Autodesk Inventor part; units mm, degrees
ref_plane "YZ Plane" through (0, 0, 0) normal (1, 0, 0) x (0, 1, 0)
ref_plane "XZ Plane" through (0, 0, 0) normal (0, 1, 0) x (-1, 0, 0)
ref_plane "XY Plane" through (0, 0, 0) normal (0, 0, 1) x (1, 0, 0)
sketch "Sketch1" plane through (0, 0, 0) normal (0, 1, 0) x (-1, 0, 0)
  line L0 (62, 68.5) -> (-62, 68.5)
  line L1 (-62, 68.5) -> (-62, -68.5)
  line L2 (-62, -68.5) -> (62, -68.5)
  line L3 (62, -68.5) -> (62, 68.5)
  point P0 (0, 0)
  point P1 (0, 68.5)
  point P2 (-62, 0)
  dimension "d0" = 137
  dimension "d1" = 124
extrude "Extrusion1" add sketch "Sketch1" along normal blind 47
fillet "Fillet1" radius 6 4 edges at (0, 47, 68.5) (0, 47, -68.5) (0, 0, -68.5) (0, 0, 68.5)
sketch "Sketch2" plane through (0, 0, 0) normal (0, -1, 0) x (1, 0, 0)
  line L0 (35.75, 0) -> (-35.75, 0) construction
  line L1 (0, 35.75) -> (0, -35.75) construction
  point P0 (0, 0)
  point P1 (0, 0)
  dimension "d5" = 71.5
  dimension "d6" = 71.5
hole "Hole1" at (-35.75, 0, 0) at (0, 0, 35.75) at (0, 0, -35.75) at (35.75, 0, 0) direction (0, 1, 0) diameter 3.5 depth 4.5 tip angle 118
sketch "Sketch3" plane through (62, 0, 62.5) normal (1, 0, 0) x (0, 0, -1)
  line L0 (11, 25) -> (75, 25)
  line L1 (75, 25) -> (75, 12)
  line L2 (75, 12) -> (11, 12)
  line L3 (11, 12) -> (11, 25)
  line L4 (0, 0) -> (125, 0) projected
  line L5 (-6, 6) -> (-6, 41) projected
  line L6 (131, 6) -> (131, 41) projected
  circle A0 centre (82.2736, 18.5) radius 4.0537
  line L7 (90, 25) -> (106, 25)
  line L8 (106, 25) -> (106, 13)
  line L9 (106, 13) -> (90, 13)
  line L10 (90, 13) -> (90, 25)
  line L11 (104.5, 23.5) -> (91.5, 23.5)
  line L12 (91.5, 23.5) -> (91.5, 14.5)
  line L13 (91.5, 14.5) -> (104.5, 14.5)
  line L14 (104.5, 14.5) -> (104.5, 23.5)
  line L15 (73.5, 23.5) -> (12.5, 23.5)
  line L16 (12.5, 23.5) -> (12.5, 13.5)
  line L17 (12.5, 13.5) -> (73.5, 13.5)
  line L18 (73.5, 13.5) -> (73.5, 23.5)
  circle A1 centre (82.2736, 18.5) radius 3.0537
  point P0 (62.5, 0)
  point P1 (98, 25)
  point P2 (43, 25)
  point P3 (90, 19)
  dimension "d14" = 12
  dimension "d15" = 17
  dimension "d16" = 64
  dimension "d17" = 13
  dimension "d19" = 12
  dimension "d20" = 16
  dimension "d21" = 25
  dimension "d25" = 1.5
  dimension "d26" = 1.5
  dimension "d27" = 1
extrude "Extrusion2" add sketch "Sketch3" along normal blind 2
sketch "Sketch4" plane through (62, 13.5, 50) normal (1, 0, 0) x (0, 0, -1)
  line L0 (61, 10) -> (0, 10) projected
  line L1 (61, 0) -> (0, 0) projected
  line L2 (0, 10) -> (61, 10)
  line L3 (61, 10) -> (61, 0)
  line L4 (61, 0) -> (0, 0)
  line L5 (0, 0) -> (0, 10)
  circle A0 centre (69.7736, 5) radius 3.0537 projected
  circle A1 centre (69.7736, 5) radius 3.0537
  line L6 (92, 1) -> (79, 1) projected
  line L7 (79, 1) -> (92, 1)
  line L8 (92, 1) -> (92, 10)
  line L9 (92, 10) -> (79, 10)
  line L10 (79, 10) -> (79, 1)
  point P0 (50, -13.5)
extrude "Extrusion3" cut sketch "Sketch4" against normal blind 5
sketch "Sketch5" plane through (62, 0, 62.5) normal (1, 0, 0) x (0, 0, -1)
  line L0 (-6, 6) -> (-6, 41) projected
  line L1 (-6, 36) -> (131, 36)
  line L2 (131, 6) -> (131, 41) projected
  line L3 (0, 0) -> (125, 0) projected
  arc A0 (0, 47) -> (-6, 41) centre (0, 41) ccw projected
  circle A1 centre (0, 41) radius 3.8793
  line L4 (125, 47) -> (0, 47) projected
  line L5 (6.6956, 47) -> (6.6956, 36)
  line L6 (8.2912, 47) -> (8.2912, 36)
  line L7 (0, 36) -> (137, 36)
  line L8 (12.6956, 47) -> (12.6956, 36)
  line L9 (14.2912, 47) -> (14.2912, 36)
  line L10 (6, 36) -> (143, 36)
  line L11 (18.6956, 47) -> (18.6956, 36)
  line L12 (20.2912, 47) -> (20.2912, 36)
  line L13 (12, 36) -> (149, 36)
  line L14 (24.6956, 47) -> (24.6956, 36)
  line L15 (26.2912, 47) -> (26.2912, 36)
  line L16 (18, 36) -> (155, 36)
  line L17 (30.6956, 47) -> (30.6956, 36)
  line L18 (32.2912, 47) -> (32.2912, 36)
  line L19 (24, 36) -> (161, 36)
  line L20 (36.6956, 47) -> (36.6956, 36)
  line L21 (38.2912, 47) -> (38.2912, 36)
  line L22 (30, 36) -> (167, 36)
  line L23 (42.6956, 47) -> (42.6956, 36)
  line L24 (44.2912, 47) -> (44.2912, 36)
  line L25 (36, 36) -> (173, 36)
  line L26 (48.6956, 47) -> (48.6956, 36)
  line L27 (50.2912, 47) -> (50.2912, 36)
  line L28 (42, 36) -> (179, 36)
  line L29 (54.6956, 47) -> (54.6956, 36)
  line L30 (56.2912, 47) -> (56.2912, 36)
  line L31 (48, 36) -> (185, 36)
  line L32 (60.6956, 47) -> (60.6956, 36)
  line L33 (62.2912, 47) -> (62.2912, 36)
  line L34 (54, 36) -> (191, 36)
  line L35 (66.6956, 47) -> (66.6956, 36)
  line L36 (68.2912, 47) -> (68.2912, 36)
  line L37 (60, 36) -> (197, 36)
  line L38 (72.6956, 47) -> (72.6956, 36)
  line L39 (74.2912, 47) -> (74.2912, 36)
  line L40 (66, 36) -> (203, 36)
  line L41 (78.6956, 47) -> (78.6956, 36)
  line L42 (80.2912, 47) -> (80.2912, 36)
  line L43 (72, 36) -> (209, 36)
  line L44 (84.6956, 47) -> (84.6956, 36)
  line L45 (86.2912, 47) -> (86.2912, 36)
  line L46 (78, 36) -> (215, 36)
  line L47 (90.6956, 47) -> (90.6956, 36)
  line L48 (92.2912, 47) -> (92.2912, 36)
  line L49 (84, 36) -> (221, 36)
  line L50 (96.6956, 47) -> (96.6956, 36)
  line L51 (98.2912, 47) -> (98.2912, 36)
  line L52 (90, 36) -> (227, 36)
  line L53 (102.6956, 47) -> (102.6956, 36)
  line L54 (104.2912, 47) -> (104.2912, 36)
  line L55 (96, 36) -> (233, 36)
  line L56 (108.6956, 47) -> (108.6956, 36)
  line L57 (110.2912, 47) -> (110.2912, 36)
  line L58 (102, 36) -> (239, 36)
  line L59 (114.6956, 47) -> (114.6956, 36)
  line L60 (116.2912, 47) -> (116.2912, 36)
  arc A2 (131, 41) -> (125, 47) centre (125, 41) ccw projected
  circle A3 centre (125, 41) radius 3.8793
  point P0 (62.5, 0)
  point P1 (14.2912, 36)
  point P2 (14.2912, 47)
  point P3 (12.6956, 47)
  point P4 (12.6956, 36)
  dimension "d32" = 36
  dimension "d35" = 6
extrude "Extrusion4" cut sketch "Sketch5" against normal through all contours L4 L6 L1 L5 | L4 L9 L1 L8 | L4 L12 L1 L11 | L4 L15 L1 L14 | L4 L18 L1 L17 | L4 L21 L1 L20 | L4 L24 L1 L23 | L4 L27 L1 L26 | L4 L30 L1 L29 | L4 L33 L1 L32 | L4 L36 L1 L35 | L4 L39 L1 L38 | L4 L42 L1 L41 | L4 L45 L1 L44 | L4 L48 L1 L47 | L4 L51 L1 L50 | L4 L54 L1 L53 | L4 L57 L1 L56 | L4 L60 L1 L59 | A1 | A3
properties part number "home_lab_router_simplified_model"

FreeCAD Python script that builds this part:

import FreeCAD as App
import Part
import Sketcher
from FreeCAD import Vector
Q = App.Units.Quantity


def edges_at(feature, points):
    """Names of the edges that pass closest to the given points."""
    edges = feature.Shape.Edges
    near = lambda p: min(range(len(edges)), key=lambda i: edges[i].distToShape(Part.Vertex(*p))[0])
    return sorted({f"Edge{near(p) + 1}" for p in points})

doc = App.newDocument("Part")
body = doc.addObject("PartDesign::Body", "Body")

# Sketch on XZ plane
sketch1 = body.newObject("Sketcher::SketchObject", "Sketch")
sketch1.AttachmentSupport = (doc.getObject("XZ_Plane"), [""])
sketch1.MapMode = "FlatFace"
sketch1.addGeometry([
    Part.LineSegment(Vector(-62, -68, 0), Vector(-62, 68, 0)),
    Part.LineSegment(Vector(-62, 68, 0), Vector(62, 68, 0)),
    Part.LineSegment(Vector(62, 68, 0), Vector(62, -68, 0)),
    Part.LineSegment(Vector(62, -68, 0), Vector(-62, -68, 0)),
], False)
sketch1.addConstraint([
    Sketcher.Constraint("Coincident", 0, 2, 1, 1),
    Sketcher.Constraint("Coincident", 1, 2, 2, 1),
    Sketcher.Constraint("Coincident", 2, 2, 3, 1),
    Sketcher.Constraint("Coincident", 3, 2, 0, 1),
    Sketcher.Constraint("Vertical", 0),
    Sketcher.Constraint("Horizontal", 1),
    Sketcher.Constraint("Vertical", 2),
    Sketcher.Constraint("Horizontal", 3),
    Sketcher.Constraint("Symmetric", 0, 2, 2, 2, -1, 1),
    Sketcher.Constraint("DistanceX", 1, 1, 1, 2, Q("124 mm")),
    Sketcher.Constraint("DistanceY", 0, 1, 0, 2, Q("137 mm")),
])
pad1 = body.newObject("PartDesign::Pad", "Pad")
pad1.Profile = sketch1
pad1.Length = 47
pad1.Reversed = True
doc.recompute()

fillet = body.newObject("PartDesign::Fillet", "Fillet")
fillet.Base = (pad1, edges_at(pad1, [
    (0, 47, 68.5),
    (0, 47, -68.5),
    (0, 0, -68.5),
    (0, 0, 68.5),
]))
fillet.Radius = 6

# Sketch on XZ plane
sketch2 = body.newObject("Sketcher::SketchObject", "Sketch001")
sketch2.AttachmentSupport = (doc.getObject("XZ_Plane"), [""])
sketch2.MapMode = "FlatFace"
sketch2.addGeometry([
    Part.Circle(Vector(-35.8, 0, 0), Vector(0, 0, 1), 1.8),
    Part.Circle(Vector(0, 35.8, 0), Vector(0, 0, 1), 1.8),
    Part.Circle(Vector(0, -35.8, 0), Vector(0, 0, 1), 1.8),
    Part.Circle(Vector(35.8, 0, 0), Vector(0, 0, 1), 1.8),
], False)
sketch2.addConstraint([
    Sketcher.Constraint("Equal", 0, 1),
    Sketcher.Constraint("Equal", 1, 2),
    Sketcher.Constraint("Equal", 2, 3),
    Sketcher.Constraint("Symmetric", 1, 3, 2, 3, -1, 1),
    Sketcher.Constraint("Symmetric", 0, 3, 3, 3, -1, 1),
    Sketcher.Constraint("PointOnObject", 0, 3, -1),
    Sketcher.Constraint("PointOnObject", 1, 3, -2),
    Sketcher.Constraint("Diameter", 0, Q("3.5 mm")),
    Sketcher.Constraint("DistanceY", 2, 3, 1, 3, Q("71.5 mm")),
    Sketcher.Constraint("DistanceX", 0, 3, 3, 3, Q("71.5 mm")),
])
doc.recompute()
hole = body.newObject("PartDesign::Hole", "Hole")
hole.Profile = sketch2
hole.ThreadType = "None"
hole.Diameter = 3.5
hole.DepthType = "Dimension"
hole.Depth = 4.5
hole.DrillPoint = "Angled"
hole.DrillPointAngle = 118

# Sketch on YZ plane
sketch3 = body.newObject("Sketcher::SketchObject", "Sketch002")
sketch3.AttachmentSupport = (doc.getObject("YZ_Plane"), [""])
sketch3.MapMode = "FlatFace"
sketch3.AttachmentOffset = App.Placement(Vector(0, 0, 62), App.Rotation())
sketch3.addGeometry([
    Part.LineSegment(Vector(25, -12.5, 0), Vector(25, 51.5, 0)),  # 0
    Part.LineSegment(Vector(25, 51.5, 0), Vector(12, 51.5, 0)),  # 1
    Part.LineSegment(Vector(12, 51.5, 0), Vector(12, -12.5, 0)),  # 2
    Part.LineSegment(Vector(12, -12.5, 0), Vector(25, -12.5, 0)),  # 3
    Part.LineSegment(Vector(23.5, 50, 0), Vector(23.5, -11, 0)),  # 4
    Part.LineSegment(Vector(23.5, -11, 0), Vector(13.5, -11, 0)),  # 5
    Part.LineSegment(Vector(13.5, -11, 0), Vector(13.5, 50, 0)),  # 6
    Part.LineSegment(Vector(13.5, 50, 0), Vector(23.5, 50, 0)),  # 7
    Part.Circle(Vector(18.5, -19.8, 0), Vector(0, 0, 1), 4.1),  # 8
    Part.Circle(Vector(18.5, -19.8, 0), Vector(0, 0, 1), 3.1),  # 9
    Part.LineSegment(Vector(25, -43.5, 0), Vector(25, -27.5, 0)),  # 10
    Part.LineSegment(Vector(25, -27.5, 0), Vector(13, -27.5, 0)),  # 11
    Part.LineSegment(Vector(13, -27.5, 0), Vector(13, -43.5, 0)),  # 12
    Part.LineSegment(Vector(13, -43.5, 0), Vector(25, -43.5, 0)),  # 13
    Part.LineSegment(Vector(23.5, -29, 0), Vector(23.5, -42, 0)),  # 14
    Part.LineSegment(Vector(23.5, -42, 0), Vector(14.5, -42, 0)),  # 15
    Part.LineSegment(Vector(14.5, -42, 0), Vector(14.5, -29, 0)),  # 16
    Part.LineSegment(Vector(14.5, -29, 0), Vector(23.5, -29, 0)),  # 17
], False)
sketch3.addConstraint([
    Sketcher.Constraint("Coincident", 0, 2, 1, 1),
    Sketcher.Constraint("Coincident", 1, 2, 2, 1),
    Sketcher.Constraint("Coincident", 2, 2, 3, 1),
    Sketcher.Constraint("Coincident", 3, 2, 0, 1),
    Sketcher.Constraint("Coincident", 4, 2, 5, 1),
    Sketcher.Constraint("Coincident", 5, 2, 6, 1),
    Sketcher.Constraint("Coincident", 6, 2, 7, 1),
    Sketcher.Constraint("Coincident", 7, 2, 4, 1),
    Sketcher.Constraint("Coincident", 10, 2, 11, 1),
    Sketcher.Constraint("Coincident", 11, 2, 12, 1),
    Sketcher.Constraint("Coincident", 12, 2, 13, 1),
    Sketcher.Constraint("Coincident", 13, 2, 10, 1),
    Sketcher.Constraint("Coincident", 14, 2, 15, 1),
    Sketcher.Constraint("Coincident", 15, 2, 16, 1),
    Sketcher.Constraint("Coincident", 16, 2, 17, 1),
    Sketcher.Constraint("Coincident", 17, 2, 14, 1),
    Sketcher.Constraint("Vertical", 0),
    Sketcher.Constraint("Horizontal", 1),
    Sketcher.Constraint("Vertical", 2),
    Sketcher.Constraint("Horizontal", 3),
    Sketcher.Constraint("Vertical", 4),
    Sketcher.Constraint("Horizontal", 5),
    Sketcher.Constraint("Vertical", 6),
    Sketcher.Constraint("Horizontal", 7),
    Sketcher.Constraint("Vertical", 10),
    Sketcher.Constraint("Horizontal", 11),
    Sketcher.Constraint("Vertical", 12),
    Sketcher.Constraint("Horizontal", 13),
    Sketcher.Constraint("Vertical", 14),
    Sketcher.Constraint("Horizontal", 15),
    Sketcher.Constraint("Vertical", 16),
    Sketcher.Constraint("Horizontal", 17),
    Sketcher.Constraint("Coincident", 9, 3, 8, 3),
    Sketcher.Constraint("Vertical", 3, 2, 10, 2),
    Sketcher.Constraint("Vertical", 7, 2, 14, 2),
    Sketcher.Constraint("Equal", 3, 14),
    Sketcher.Constraint("DistanceX", 1, 2, 1, 1, Q("13 mm")),
    Sketcher.Constraint("DistanceX", 11, 2, 11, 1, Q("12 mm")),
    Sketcher.Constraint("DistanceY", 0, 1, 0, 2, Q("64 mm")),
    Sketcher.Constraint("DistanceY", 10, 1, 10, 2, Q("16 mm")),
    Sketcher.Constraint("DistanceX", -1, 1, 0, 2, Q("25 mm")),
    Sketcher.Constraint("DistanceX", 4, 2, 3, 2, Q("1.5 mm")),
    Sketcher.Constraint("DistanceY", 3, 2, 4, 2, Q("1.5 mm")),
    Sketcher.Constraint("DistanceX", 2, 2, 5, 2, Q("1.5 mm")),
    Sketcher.Constraint("DistanceY", 6, 2, 1, 2, Q("1.5 mm")),
    Sketcher.Constraint("DistanceY", 13, 2, 14, 2, Q("1.5 mm")),
    Sketcher.Constraint("DistanceX", 12, 2, 15, 2, Q("1.5 mm")),
    Sketcher.Constraint("DistanceY", 4, 2, -1, 1, Q("11 mm")),
    Sketcher.Constraint("DistanceY", 14, 2, -1, 1, Q("42 mm")),
    Sketcher.Constraint("DistanceX", 8, 3, 4, 2, Q("5 mm")),
    Sketcher.Constraint("Diameter", 8, Q("8.1074 mm")),
    Sketcher.Constraint("Diameter", 9, Q("6.1074 mm")),
    Sketcher.Constraint("DistanceY", 8, 3, -1, 1, Q("19.7736 mm")),
])
pad2 = body.newObject("PartDesign::Pad", "Pad001")
pad2.Profile = sketch3
pad2.Length = 2

# Sketch on YZ plane
sketch4 = body.newObject("Sketcher::SketchObject", "Sketch003")
sketch4.AttachmentSupport = (doc.getObject("YZ_Plane"), [""])
sketch4.MapMode = "FlatFace"
sketch4.AttachmentOffset = App.Placement(Vector(0, 0, 62), App.Rotation())
sketch4.addGeometry([
    Part.LineSegment(Vector(13.5, -11, 0), Vector(23.5, -11, 0)),  # 0
    Part.LineSegment(Vector(23.5, -11, 0), Vector(23.5, 50, 0)),  # 1
    Part.LineSegment(Vector(23.5, 50, 0), Vector(13.5, 50, 0)),  # 2
    Part.LineSegment(Vector(13.5, 50, 0), Vector(13.5, -11, 0)),  # 3
    Part.Circle(Vector(18.5, -19.8, 0), Vector(0, 0, 1), 3.1),  # 4
    Part.LineSegment(Vector(14.5, -29, 0), Vector(14.5, -42, 0)),  # 5
    Part.LineSegment(Vector(14.5, -42, 0), Vector(23.5, -42, 0)),  # 6
    Part.LineSegment(Vector(23.5, -42, 0), Vector(23.5, -29, 0)),  # 7
    Part.LineSegment(Vector(23.5, -29, 0), Vector(14.5, -29, 0)),  # 8
], False)
sketch4.addConstraint([
    Sketcher.Constraint("Coincident", 0, 2, 1, 1),
    Sketcher.Constraint("Coincident", 1, 2, 2, 1),
    Sketcher.Constraint("Coincident", 2, 2, 3, 1),
    Sketcher.Constraint("Coincident", 3, 2, 0, 1),
    Sketcher.Constraint("Coincident", 5, 2, 6, 1),
    Sketcher.Constraint("Coincident", 6, 2, 7, 1),
    Sketcher.Constraint("Coincident", 7, 2, 8, 1),
    Sketcher.Constraint("Coincident", 8, 2, 5, 1),
    Sketcher.Constraint("Horizontal", 0),
    Sketcher.Constraint("Vertical", 1),
    Sketcher.Constraint("Horizontal", 2),
    Sketcher.Constraint("Vertical", 3),
    Sketcher.Constraint("Vertical", 5),
    Sketcher.Constraint("Horizontal", 6),
    Sketcher.Constraint("Vertical", 7),
    Sketcher.Constraint("Horizontal", 8),
    Sketcher.Constraint("Vertical", 1, 2, 6, 2),
    Sketcher.Constraint("DistanceX", 0, 1, 0, 2, Q("10 mm")),
    Sketcher.Constraint("DistanceX", 6, 1, 6, 2, Q("9 mm")),
    Sketcher.Constraint("DistanceY", 1, 1, 1, 2, Q("61 mm")),
    Sketcher.Constraint("DistanceY", 5, 2, 5, 1, Q("13 mm")),
    Sketcher.Constraint("DistanceY", 0, 2, -1, 1, Q("11 mm")),
    Sketcher.Constraint("DistanceY", 5, 2, -1, 1, Q("42 mm")),
    Sketcher.Constraint("DistanceX", 4, 3, 0, 2, Q("5 mm")),
    Sketcher.Constraint("Diameter", 4, Q("6.1074 mm")),
    Sketcher.Constraint("DistanceX", -1, 1, 4, 3, Q("18.5 mm")),
    Sketcher.Constraint("DistanceY", 4, 3, -1, 1, Q("19.7736 mm")),
])
pocket1 = body.newObject("PartDesign::Pocket", "Pocket")
pocket1.Profile = sketch4
pocket1.Length = 5

# Sketch on YZ plane
sketch5 = body.newObject("Sketcher::SketchObject", "Sketch004")
sketch5.AttachmentSupport = (doc.getObject("YZ_Plane"), [""])
sketch5.MapMode = "FlatFace"
sketch5.AttachmentOffset = App.Placement(Vector(0, 0, 62), App.Rotation())
sketch5.addGeometry([
    Part.LineSegment(Vector(47, 54.2, 0), Vector(47, 55.8, 0)),  # 0
    Part.LineSegment(Vector(47, 55.8, 0), Vector(36, 55.8, 0)),  # 1
    Part.LineSegment(Vector(36, 55.8, 0), Vector(36, 54.2, 0)),  # 2
    Part.LineSegment(Vector(36, 54.2, 0), Vector(47, 54.2, 0)),  # 3
    Part.LineSegment(Vector(47, 48.2, 0), Vector(47, 49.8, 0)),  # 4
    Part.LineSegment(Vector(47, 49.8, 0), Vector(36, 49.8, 0)),  # 5
    Part.LineSegment(Vector(36, 49.8, 0), Vector(36, 48.2, 0)),  # 6
    Part.LineSegment(Vector(36, 48.2, 0), Vector(47, 48.2, 0)),  # 7
    Part.LineSegment(Vector(47, 42.2, 0), Vector(47, 43.8, 0)),  # 8
    Part.LineSegment(Vector(47, 43.8, 0), Vector(36, 43.8, 0)),  # 9
    Part.LineSegment(Vector(36, 43.8, 0), Vector(36, 42.2, 0)),  # 10
    Part.LineSegment(Vector(36, 42.2, 0), Vector(47, 42.2, 0)),  # 11
    Part.LineSegment(Vector(47, 36.2, 0), Vector(47, 37.8, 0)),  # 12
    Part.LineSegment(Vector(47, 37.8, 0), Vector(36, 37.8, 0)),  # 13
    Part.LineSegment(Vector(36, 37.8, 0), Vector(36, 36.2, 0)),  # 14
    Part.LineSegment(Vector(36, 36.2, 0), Vector(47, 36.2, 0)),  # 15
    Part.LineSegment(Vector(47, 30.2, 0), Vector(47, 31.8, 0)),  # 16
    Part.LineSegment(Vector(47, 31.8, 0), Vector(36, 31.8, 0)),  # 17
    Part.LineSegment(Vector(36, 31.8, 0), Vector(36, 30.2, 0)),  # 18
    Part.LineSegment(Vector(36, 30.2, 0), Vector(47, 30.2, 0)),  # 19
    Part.LineSegment(Vector(47, 24.2, 0), Vector(47, 25.8, 0)),  # 20
    Part.LineSegment(Vector(47, 25.8, 0), Vector(36, 25.8, 0)),  # 21
    Part.LineSegment(Vector(36, 25.8, 0), Vector(36, 24.2, 0)),  # 22
    Part.LineSegment(Vector(36, 24.2, 0), Vector(47, 24.2, 0)),  # 23
    Part.LineSegment(Vector(47, 18.2, 0), Vector(47, 19.8, 0)),  # 24
    Part.LineSegment(Vector(47, 19.8, 0), Vector(36, 19.8, 0)),  # 25
    Part.LineSegment(Vector(36, 19.8, 0), Vector(36, 18.2, 0)),  # 26
    Part.LineSegment(Vector(36, 18.2, 0), Vector(47, 18.2, 0)),  # 27
    Part.LineSegment(Vector(47, 12.2, 0), Vector(47, 13.8, 0)),  # 28
    Part.LineSegment(Vector(47, 13.8, 0), Vector(36, 13.8, 0)),  # 29
    Part.LineSegment(Vector(36, 13.8, 0), Vector(36, 12.2, 0)),  # 30
    Part.LineSegment(Vector(36, 12.2, 0), Vector(47, 12.2, 0)),  # 31
    Part.LineSegment(Vector(47, 6.2, 0), Vector(47, 7.8, 0)),  # 32
    Part.LineSegment(Vector(47, 7.8, 0), Vector(36, 7.8, 0)),  # 33
    Part.LineSegment(Vector(36, 7.8, 0), Vector(36, 6.2, 0)),  # 34
    Part.LineSegment(Vector(36, 6.2, 0), Vector(47, 6.2, 0)),  # 35
    Part.LineSegment(Vector(47, 0.2, 0), Vector(47, 1.8, 0)),  # 36
    Part.LineSegment(Vector(47, 1.8, 0), Vector(36, 1.8, 0)),  # 37
    Part.LineSegment(Vector(36, 1.8, 0), Vector(36, 0.2, 0)),  # 38
    Part.LineSegment(Vector(36, 0.2, 0), Vector(47, 0.2, 0)),  # 39
    Part.LineSegment(Vector(47, -5.8, 0), Vector(47, -4.2, 0)),  # 40
    Part.LineSegment(Vector(47, -4.2, 0), Vector(36, -4.2, 0)),  # 41
    Part.LineSegment(Vector(36, -4.2, 0), Vector(36, -5.8, 0)),  # 42
    Part.LineSegment(Vector(36, -5.8, 0), Vector(47, -5.8, 0)),  # 43
    Part.LineSegment(Vector(47, -11.8, 0), Vector(47, -10.2, 0)),  # 44
    Part.LineSegment(Vector(47, -10.2, 0), Vector(36, -10.2, 0)),  # 45
    Part.LineSegment(Vector(36, -10.2, 0), Vector(36, -11.8, 0)),  # 46
    Part.LineSegment(Vector(36, -11.8, 0), Vector(47, -11.8, 0)),  # 47
    Part.LineSegment(Vector(47, -17.8, 0), Vector(47, -16.2, 0)),  # 48
    Part.LineSegment(Vector(47, -16.2, 0), Vector(36, -16.2, 0)),  # 49
    Part.LineSegment(Vector(36, -16.2, 0), Vector(36, -17.8, 0)),  # 50
    Part.LineSegment(Vector(36, -17.8, 0), Vector(47, -17.8, 0)),  # 51
    Part.LineSegment(Vector(47, -23.8, 0), Vector(47, -22.2, 0)),  # 52
    Part.LineSegment(Vector(47, -22.2, 0), Vector(36, -22.2, 0)),  # 53
    Part.LineSegment(Vector(36, -22.2, 0), Vector(36, -23.8, 0)),  # 54
    Part.LineSegment(Vector(36, -23.8, 0), Vector(47, -23.8, 0)),  # 55
    Part.LineSegment(Vector(47, -29.8, 0), Vector(47, -28.2, 0)),  # 56
    Part.LineSegment(Vector(47, -28.2, 0), Vector(36, -28.2, 0)),  # 57
    Part.LineSegment(Vector(36, -28.2, 0), Vector(36, -29.8, 0)),  # 58
    Part.LineSegment(Vector(36, -29.8, 0), Vector(47, -29.8, 0)),  # 59
    Part.LineSegment(Vector(47, -35.8, 0), Vector(47, -34.2, 0)),  # 60
    Part.LineSegment(Vector(47, -34.2, 0), Vector(36, -34.2, 0)),  # 61
    Part.LineSegment(Vector(36, -34.2, 0), Vector(36, -35.8, 0)),  # 62
    Part.LineSegment(Vector(36, -35.8, 0), Vector(47, -35.8, 0)),  # 63
    Part.LineSegment(Vector(47, -41.8, 0), Vector(47, -40.2, 0)),  # 64
    Part.LineSegment(Vector(47, -40.2, 0), Vector(36, -40.2, 0)),  # 65
    Part.LineSegment(Vector(36, -40.2, 0), Vector(36, -41.8, 0)),  # 66
    Part.LineSegment(Vector(36, -41.8, 0), Vector(47, -41.8, 0)),  # 67
    Part.LineSegment(Vector(47, -47.8, 0), Vector(47, -46.2, 0)),  # 68
    Part.LineSegment(Vector(47, -46.2, 0), Vector(36, -46.2, 0)),  # 69
    Part.LineSegment(Vector(36, -46.2, 0), Vector(36, -47.8, 0)),  # 70
    Part.LineSegment(Vector(36, -47.8, 0), Vector(47, -47.8, 0)),  # 71
    Part.LineSegment(Vector(47, -53.8, 0), Vector(47, -52.2, 0)),  # 72
    Part.LineSegment(Vector(47, -52.2, 0), Vector(36, -52.2, 0)),  # 73
    Part.LineSegment(Vector(36, -52.2, 0), Vector(36, -53.8, 0)),  # 74
    Part.LineSegment(Vector(36, -53.8, 0), Vector(47, -53.8, 0)),  # 75
    Part.Circle(Vector(41, 62.5, 0), Vector(0, 0, 1), 3.9),  # 76
    Part.Circle(Vector(41, -62.5, 0), Vector(0, 0, 1), 3.9),  # 77
], False)
sketch5.addConstraint([
    Sketcher.Constraint("Coincident", 0, 2, 1, 1),
    Sketcher.Constraint("Coincident", 1, 2, 2, 1),
    Sketcher.Constraint("Coincident", 2, 2, 3, 1),
    Sketcher.Constraint("Coincident", 3, 2, 0, 1),
    Sketcher.Constraint("Coincident", 4, 2, 5, 1),
    Sketcher.Constraint("Coincident", 5, 2, 6, 1),
    Sketcher.Constraint("Coincident", 6, 2, 7, 1),
    Sketcher.Constraint("Coincident", 7, 2, 4, 1),
    Sketcher.Constraint("Coincident", 8, 2, 9, 1),
    Sketcher.Constraint("Coincident", 9, 2, 10, 1),
    Sketcher.Constraint("Coincident", 10, 2, 11, 1),
    Sketcher.Constraint("Coincident", 11, 2, 8, 1),
    Sketcher.Constraint("Coincident", 12, 2, 13, 1),
    Sketcher.Constraint("Coincident", 13, 2, 14, 1),
    Sketcher.Constraint("Coincident", 14, 2, 15, 1),
    Sketcher.Constraint("Coincident", 15, 2, 12, 1),
    Sketcher.Constraint("Coincident", 16, 2, 17, 1),
    Sketcher.Constraint("Coincident", 17, 2, 18, 1),
    Sketcher.Constraint("Coincident", 18, 2, 19, 1),
    Sketcher.Constraint("Coincident", 19, 2, 16, 1),
    Sketcher.Constraint("Coincident", 20, 2, 21, 1),
    Sketcher.Constraint("Coincident", 21, 2, 22, 1),
    Sketcher.Constraint("Coincident", 22, 2, 23, 1),
    Sketcher.Constraint("Coincident", 23, 2, 20, 1),
    Sketcher.Constraint("Coincident", 24, 2, 25, 1),
    Sketcher.Constraint("Coincident", 25, 2, 26, 1),
    Sketcher.Constraint("Coincident", 26, 2, 27, 1),
    Sketcher.Constraint("Coincident", 27, 2, 24, 1),
    Sketcher.Constraint("Coincident", 28, 2, 29, 1),
    Sketcher.Constraint("Coincident", 29, 2, 30, 1),
    Sketcher.Constraint("Coincident", 30, 2, 31, 1),
    Sketcher.Constraint("Coincident", 31, 2, 28, 1),
    Sketcher.Constraint("Coincident", 32, 2, 33, 1),
    Sketcher.Constraint("Coincident", 33, 2, 34, 1),
    Sketcher.Constraint("Coincident", 34, 2, 35, 1),
    Sketcher.Constraint("Coincident", 35, 2, 32, 1),
    Sketcher.Constraint("Coincident", 36, 2, 37, 1),
    Sketcher.Constraint("Coincident", 37, 2, 38, 1),
    Sketcher.Constraint("Coincident", 38, 2, 39, 1),
    Sketcher.Constraint("Coincident", 39, 2, 36, 1),
    Sketcher.Constraint("Coincident", 40, 2, 41, 1),
    Sketcher.Constraint("Coincident", 41, 2, 42, 1),
    Sketcher.Constraint("Coincident", 42, 2, 43, 1),
    Sketcher.Constraint("Coincident", 43, 2, 40, 1),
    Sketcher.Constraint("Coincident", 44, 2, 45, 1),
    Sketcher.Constraint("Coincident", 45, 2, 46, 1),
    Sketcher.Constraint("Coincident", 46, 2, 47, 1),
    Sketcher.Constraint("Coincident", 47, 2, 44, 1),
    Sketcher.Constraint("Coincident", 48, 2, 49, 1),
    Sketcher.Constraint("Coincident", 49, 2, 50, 1),
    Sketcher.Constraint("Coincident", 50, 2, 51, 1),
    Sketcher.Constraint("Coincident", 51, 2, 48, 1),
    Sketcher.Constraint("Coincident", 52, 2, 53, 1),
    Sketcher.Constraint("Coincident", 53, 2, 54, 1),
    Sketcher.Constraint("Coincident", 54, 2, 55, 1),
    Sketcher.Constraint("Coincident", 55, 2, 52, 1),
    Sketcher.Constraint("Coincident", 56, 2, 57, 1),
    Sketcher.Constraint("Coincident", 57, 2, 58, 1),
    Sketcher.Constraint("Coincident", 58, 2, 59, 1),
    Sketcher.Constraint("Coincident", 59, 2, 56, 1),
    Sketcher.Constraint("Coincident", 60, 2, 61, 1),
    Sketcher.Constraint("Coincident", 61, 2, 62, 1),
    Sketcher.Constraint("Coincident", 62, 2, 63, 1),
    Sketcher.Constraint("Coincident", 63, 2, 60, 1),
    Sketcher.Constraint("Coincident", 64, 2, 65, 1),
    Sketcher.Constraint("Coincident", 65, 2, 66, 1),
    Sketcher.Constraint("Coincident", 66, 2, 67, 1),
    Sketcher.Constraint("Coincident", 67, 2, 64, 1),
    Sketcher.Constraint("Coincident", 68, 2, 69, 1),
    Sketcher.Constraint("Coincident", 69, 2, 70, 1),
    Sketcher.Constraint("Coincident", 70, 2, 71, 1),
    Sketcher.Constraint("Coincident", 71, 2, 68, 1),
    Sketcher.Constraint("Coincident", 72, 2, 73, 1),
    Sketcher.Constraint("Coincident", 73, 2, 74, 1),
    Sketcher.Constraint("Coincident", 74, 2, 75, 1),
    Sketcher.Constraint("Coincident", 75, 2, 72, 1),
    Sketcher.Constraint("Vertical", 0),
    Sketcher.Constraint("Horizontal", 1),
    Sketcher.Constraint("Vertical", 2),
    Sketcher.Constraint("Horizontal", 3),
    Sketcher.Constraint("Vertical", 4),
    Sketcher.Constraint("Horizontal", 5),
    Sketcher.Constraint("Vertical", 6),
    Sketcher.Constraint("Horizontal", 7),
    Sketcher.Constraint("Vertical", 8),
    Sketcher.Constraint("Horizontal", 9),
    Sketcher.Constraint("Vertical", 10),
    Sketcher.Constraint("Horizontal", 11),
    Sketcher.Constraint("Vertical", 12),
    Sketcher.Constraint("Horizontal", 13),
    Sketcher.Constraint("Vertical", 14),
    Sketcher.Constraint("Horizontal", 15),
    Sketcher.Constraint("Vertical", 16),
    Sketcher.Constraint("Horizontal", 17),
    Sketcher.Constraint("Vertical", 18),
    Sketcher.Constraint("Horizontal", 19),
    Sketcher.Constraint("Vertical", 20),
    Sketcher.Constraint("Horizontal", 21),
    Sketcher.Constraint("Vertical", 22),
    Sketcher.Constraint("Horizontal", 23),
    Sketcher.Constraint("Vertical", 24),
    Sketcher.Constraint("Horizontal", 25),
    Sketcher.Constraint("Vertical", 26),
    Sketcher.Constraint("Horizontal", 27),
    Sketcher.Constraint("Vertical", 28),
    Sketcher.Constraint("Horizontal", 29),
    Sketcher.Constraint("Vertical", 30),
    Sketcher.Constraint("Horizontal", 31),
    Sketcher.Constraint("Vertical", 32),
    Sketcher.Constraint("Horizontal", 33),
    Sketcher.Constraint("Vertical", 34),
    Sketcher.Constraint("Horizontal", 35),
    Sketcher.Constraint("Vertical", 36),
    Sketcher.Constraint("Horizontal", 37),
    Sketcher.Constraint("Vertical", 38),
    Sketcher.Constraint("Horizontal", 39),
    Sketcher.Constraint("Vertical", 40),
    Sketcher.Constraint("Horizontal", 41),
    Sketcher.Constraint("Vertical", 42),
    Sketcher.Constraint("Horizontal", 43),
    Sketcher.Constraint("Vertical", 44),
    Sketcher.Constraint("Horizontal", 45),
    Sketcher.Constraint("Vertical", 46),
    Sketcher.Constraint("Horizontal", 47),
    Sketcher.Constraint("Vertical", 48),
    Sketcher.Constraint("Horizontal", 49),
    Sketcher.Constraint("Vertical", 50),
    Sketcher.Constraint("Horizontal", 51),
    Sketcher.Constraint("Vertical", 52),
    Sketcher.Constraint("Horizontal", 53),
    Sketcher.Constraint("Vertical", 54),
    Sketcher.Constraint("Horizontal", 55),
    Sketcher.Constraint("Vertical", 56),
    Sketcher.Constraint("Horizontal", 57),
    Sketcher.Constraint("Vertical", 58),
    Sketcher.Constraint("Horizontal", 59),
    Sketcher.Constraint("Vertical", 60),
    Sketcher.Constraint("Horizontal", 61),
    Sketcher.Constraint("Vertical", 62),
    Sketcher.Constraint("Horizontal", 63),
    Sketcher.Constraint("Vertical", 64),
    Sketcher.Constraint("Horizontal", 65),
    Sketcher.Constraint("Vertical", 66),
    Sketcher.Constraint("Horizontal", 67),
    Sketcher.Constraint("Vertical", 68),
    Sketcher.Constraint("Horizontal", 69),
    Sketcher.Constraint("Vertical", 70),
    Sketcher.Constraint("Horizontal", 71),
    Sketcher.Constraint("Vertical", 72),
    Sketcher.Constraint("Horizontal", 73),
    Sketcher.Constraint("Vertical", 74),
    Sketcher.Constraint("Horizontal", 75),
    Sketcher.Constraint("Equal", 76, 77),
    Sketcher.Constraint("Symmetric", 76, 3, 77, 3, -1),
    Sketcher.Constraint("Vertical", 3, 2, 4, 2),
    Sketcher.Constraint("Vertical", 2, 2, 5, 2),
    Sketcher.Constraint("Vertical", 7, 2, 8, 2),
    Sketcher.Constraint("Vertical", 6, 2, 9, 2),
    Sketcher.Constraint("Vertical", 11, 2, 12, 2),
    Sketcher.Constraint("Vertical", 10, 2, 13, 2),
    Sketcher.Constraint("Vertical", 15, 2, 16, 2),
    Sketcher.Constraint("Vertical", 14, 2, 17, 2),
    Sketcher.Constraint("Vertical", 19, 2, 20, 2),
    Sketcher.Constraint("Vertical", 18, 2, 21, 2),
    Sketcher.Constraint("Vertical", 23, 2, 24, 2),
    Sketcher.Constraint("Vertical", 22, 2, 25, 2),
    Sketcher.Constraint("Vertical", 27, 2, 28, 2),
    Sketcher.Constraint("Vertical", 26, 2, 29, 2),
    Sketcher.Constraint("Vertical", 31, 2, 32, 2),
    Sketcher.Constraint("Vertical", 30, 2, 33, 2),
    Sketcher.Constraint("Vertical", 35, 2, 36, 2),
    Sketcher.Constraint("Vertical", 34, 2, 37, 2),
    Sketcher.Constraint("Vertical", 39, 2, 40, 2),
    Sketcher.Constraint("Vertical", 38, 2, 41, 2),
    Sketcher.Constraint("Vertical", 43, 2, 44, 2),
    Sketcher.Constraint("Vertical", 42, 2, 45, 2),
    Sketcher.Constraint("Vertical", 47, 2, 48, 2),
    Sketcher.Constraint("Vertical", 46, 2, 49, 2),
    Sketcher.Constraint("Vertical", 51, 2, 52, 2),
    Sketcher.Constraint("Vertical", 50, 2, 53, 2),
    Sketcher.Constraint("Vertical", 55, 2, 56, 2),
    Sketcher.Constraint("Vertical", 54, 2, 57, 2),
    Sketcher.Constraint("Vertical", 59, 2, 60, 2),
    Sketcher.Constraint("Vertical", 58, 2, 61, 2),
    Sketcher.Constraint("Vertical", 63, 2, 64, 2),
    Sketcher.Constraint("Vertical", 62, 2, 65, 2),
    Sketcher.Constraint("Vertical", 67, 2, 68, 2),
    Sketcher.Constraint("Vertical", 66, 2, 69, 2),
    Sketcher.Constraint("Vertical", 71, 2, 72, 2),
    Sketcher.Constraint("Vertical", 70, 2, 73, 2),
    Sketcher.Constraint("Equal", 2, 4),
    Sketcher.Constraint("Equal", 6, 8),
    Sketcher.Constraint("Equal", 10, 12),
    Sketcher.Constraint("Equal", 14, 16),
    Sketcher.Constraint("Equal", 18, 20),
    Sketcher.Constraint("Equal", 22, 24),
    Sketcher.Constraint("Equal", 26, 28),
    Sketcher.Constraint("Equal", 30, 32),
    Sketcher.Constraint("Equal", 34, 36),
    Sketcher.Constraint("Equal", 38, 40),
    Sketcher.Constraint("Equal", 42, 44),
    Sketcher.Constraint("Equal", 46, 48),
    Sketcher.Constraint("Equal", 50, 52),
    Sketcher.Constraint("Equal", 54, 56),
    Sketcher.Constraint("Equal", 58, 60),
    Sketcher.Constraint("Equal", 62, 64),
    Sketcher.Constraint("Equal", 66, 68),
    Sketcher.Constraint("Equal", 70, 72),
    Sketcher.Constraint("DistanceX", -1, 1, 1, 2, Q("36 mm")),
    Sketcher.Constraint("DistanceX", 1, 2, 1, 1, Q("11 mm")),
    Sketcher.Constraint("DistanceX", -1, 1, 76, 3, Q("41 mm")),
    Sketcher.Constraint("Diameter", 76, Q("7.7586 mm")),
    Sketcher.Constraint("DistanceY", -1, 1, 76, 3, Q("62.5 mm")),
    Sketcher.Constraint("DistanceY", 0, 1, 0, 2, Q("1.5956 mm")),
    Sketcher.Constraint("DistanceY", -1, 1, 0, 2, Q("55.8044 mm")),
    Sketcher.Constraint("DistanceY", -1, 1, 4, 2, Q("49.8044 mm")),
    Sketcher.Constraint("DistanceY", -1, 1, 8, 2, Q("43.8044 mm")),
    Sketcher.Constraint("DistanceY", -1, 1, 12, 2, Q("37.8044 mm")),
    Sketcher.Constraint("DistanceY", -1, 1, 16, 2, Q("31.8044 mm")),
    Sketcher.Constraint("DistanceY", -1, 1, 20, 2, Q("25.8044 mm")),
    Sketcher.Constraint("DistanceY", -1, 1, 24, 2, Q("19.8044 mm")),
    Sketcher.Constraint("DistanceY", -1, 1, 28, 2, Q("13.8044 mm")),
    Sketcher.Constraint("DistanceY", -1, 1, 32, 2, Q("7.8044 mm")),
    Sketcher.Constraint("DistanceY", -1, 1, 36, 2, Q("1.8044 mm")),
    Sketcher.Constraint("DistanceY", 40, 2, -1, 1, Q("4.1956 mm")),
    Sketcher.Constraint("DistanceY", 44, 2, -1, 1, Q("10.1956 mm")),
    Sketcher.Constraint("DistanceY", 48, 2, -1, 1, Q("16.1956 mm")),
    Sketcher.Constraint("DistanceY", 52, 2, -1, 1, Q("22.1956 mm")),
    Sketcher.Constraint("DistanceY", 56, 2, -1, 1, Q("28.1956 mm")),
    Sketcher.Constraint("DistanceY", 60, 2, -1, 1, Q("34.1956 mm")),
    Sketcher.Constraint("DistanceY", 64, 2, -1, 1, Q("40.1956 mm")),
    Sketcher.Constraint("DistanceY", 68, 2, -1, 1, Q("46.1956 mm")),
    Sketcher.Constraint("DistanceY", 72, 2, -1, 1, Q("52.1956 mm")),
])
pocket2 = body.newObject("PartDesign::Pocket", "Pocket001")
pocket2.Profile = sketch5
pocket2.Type = "ThroughAll"

doc.recompute()
